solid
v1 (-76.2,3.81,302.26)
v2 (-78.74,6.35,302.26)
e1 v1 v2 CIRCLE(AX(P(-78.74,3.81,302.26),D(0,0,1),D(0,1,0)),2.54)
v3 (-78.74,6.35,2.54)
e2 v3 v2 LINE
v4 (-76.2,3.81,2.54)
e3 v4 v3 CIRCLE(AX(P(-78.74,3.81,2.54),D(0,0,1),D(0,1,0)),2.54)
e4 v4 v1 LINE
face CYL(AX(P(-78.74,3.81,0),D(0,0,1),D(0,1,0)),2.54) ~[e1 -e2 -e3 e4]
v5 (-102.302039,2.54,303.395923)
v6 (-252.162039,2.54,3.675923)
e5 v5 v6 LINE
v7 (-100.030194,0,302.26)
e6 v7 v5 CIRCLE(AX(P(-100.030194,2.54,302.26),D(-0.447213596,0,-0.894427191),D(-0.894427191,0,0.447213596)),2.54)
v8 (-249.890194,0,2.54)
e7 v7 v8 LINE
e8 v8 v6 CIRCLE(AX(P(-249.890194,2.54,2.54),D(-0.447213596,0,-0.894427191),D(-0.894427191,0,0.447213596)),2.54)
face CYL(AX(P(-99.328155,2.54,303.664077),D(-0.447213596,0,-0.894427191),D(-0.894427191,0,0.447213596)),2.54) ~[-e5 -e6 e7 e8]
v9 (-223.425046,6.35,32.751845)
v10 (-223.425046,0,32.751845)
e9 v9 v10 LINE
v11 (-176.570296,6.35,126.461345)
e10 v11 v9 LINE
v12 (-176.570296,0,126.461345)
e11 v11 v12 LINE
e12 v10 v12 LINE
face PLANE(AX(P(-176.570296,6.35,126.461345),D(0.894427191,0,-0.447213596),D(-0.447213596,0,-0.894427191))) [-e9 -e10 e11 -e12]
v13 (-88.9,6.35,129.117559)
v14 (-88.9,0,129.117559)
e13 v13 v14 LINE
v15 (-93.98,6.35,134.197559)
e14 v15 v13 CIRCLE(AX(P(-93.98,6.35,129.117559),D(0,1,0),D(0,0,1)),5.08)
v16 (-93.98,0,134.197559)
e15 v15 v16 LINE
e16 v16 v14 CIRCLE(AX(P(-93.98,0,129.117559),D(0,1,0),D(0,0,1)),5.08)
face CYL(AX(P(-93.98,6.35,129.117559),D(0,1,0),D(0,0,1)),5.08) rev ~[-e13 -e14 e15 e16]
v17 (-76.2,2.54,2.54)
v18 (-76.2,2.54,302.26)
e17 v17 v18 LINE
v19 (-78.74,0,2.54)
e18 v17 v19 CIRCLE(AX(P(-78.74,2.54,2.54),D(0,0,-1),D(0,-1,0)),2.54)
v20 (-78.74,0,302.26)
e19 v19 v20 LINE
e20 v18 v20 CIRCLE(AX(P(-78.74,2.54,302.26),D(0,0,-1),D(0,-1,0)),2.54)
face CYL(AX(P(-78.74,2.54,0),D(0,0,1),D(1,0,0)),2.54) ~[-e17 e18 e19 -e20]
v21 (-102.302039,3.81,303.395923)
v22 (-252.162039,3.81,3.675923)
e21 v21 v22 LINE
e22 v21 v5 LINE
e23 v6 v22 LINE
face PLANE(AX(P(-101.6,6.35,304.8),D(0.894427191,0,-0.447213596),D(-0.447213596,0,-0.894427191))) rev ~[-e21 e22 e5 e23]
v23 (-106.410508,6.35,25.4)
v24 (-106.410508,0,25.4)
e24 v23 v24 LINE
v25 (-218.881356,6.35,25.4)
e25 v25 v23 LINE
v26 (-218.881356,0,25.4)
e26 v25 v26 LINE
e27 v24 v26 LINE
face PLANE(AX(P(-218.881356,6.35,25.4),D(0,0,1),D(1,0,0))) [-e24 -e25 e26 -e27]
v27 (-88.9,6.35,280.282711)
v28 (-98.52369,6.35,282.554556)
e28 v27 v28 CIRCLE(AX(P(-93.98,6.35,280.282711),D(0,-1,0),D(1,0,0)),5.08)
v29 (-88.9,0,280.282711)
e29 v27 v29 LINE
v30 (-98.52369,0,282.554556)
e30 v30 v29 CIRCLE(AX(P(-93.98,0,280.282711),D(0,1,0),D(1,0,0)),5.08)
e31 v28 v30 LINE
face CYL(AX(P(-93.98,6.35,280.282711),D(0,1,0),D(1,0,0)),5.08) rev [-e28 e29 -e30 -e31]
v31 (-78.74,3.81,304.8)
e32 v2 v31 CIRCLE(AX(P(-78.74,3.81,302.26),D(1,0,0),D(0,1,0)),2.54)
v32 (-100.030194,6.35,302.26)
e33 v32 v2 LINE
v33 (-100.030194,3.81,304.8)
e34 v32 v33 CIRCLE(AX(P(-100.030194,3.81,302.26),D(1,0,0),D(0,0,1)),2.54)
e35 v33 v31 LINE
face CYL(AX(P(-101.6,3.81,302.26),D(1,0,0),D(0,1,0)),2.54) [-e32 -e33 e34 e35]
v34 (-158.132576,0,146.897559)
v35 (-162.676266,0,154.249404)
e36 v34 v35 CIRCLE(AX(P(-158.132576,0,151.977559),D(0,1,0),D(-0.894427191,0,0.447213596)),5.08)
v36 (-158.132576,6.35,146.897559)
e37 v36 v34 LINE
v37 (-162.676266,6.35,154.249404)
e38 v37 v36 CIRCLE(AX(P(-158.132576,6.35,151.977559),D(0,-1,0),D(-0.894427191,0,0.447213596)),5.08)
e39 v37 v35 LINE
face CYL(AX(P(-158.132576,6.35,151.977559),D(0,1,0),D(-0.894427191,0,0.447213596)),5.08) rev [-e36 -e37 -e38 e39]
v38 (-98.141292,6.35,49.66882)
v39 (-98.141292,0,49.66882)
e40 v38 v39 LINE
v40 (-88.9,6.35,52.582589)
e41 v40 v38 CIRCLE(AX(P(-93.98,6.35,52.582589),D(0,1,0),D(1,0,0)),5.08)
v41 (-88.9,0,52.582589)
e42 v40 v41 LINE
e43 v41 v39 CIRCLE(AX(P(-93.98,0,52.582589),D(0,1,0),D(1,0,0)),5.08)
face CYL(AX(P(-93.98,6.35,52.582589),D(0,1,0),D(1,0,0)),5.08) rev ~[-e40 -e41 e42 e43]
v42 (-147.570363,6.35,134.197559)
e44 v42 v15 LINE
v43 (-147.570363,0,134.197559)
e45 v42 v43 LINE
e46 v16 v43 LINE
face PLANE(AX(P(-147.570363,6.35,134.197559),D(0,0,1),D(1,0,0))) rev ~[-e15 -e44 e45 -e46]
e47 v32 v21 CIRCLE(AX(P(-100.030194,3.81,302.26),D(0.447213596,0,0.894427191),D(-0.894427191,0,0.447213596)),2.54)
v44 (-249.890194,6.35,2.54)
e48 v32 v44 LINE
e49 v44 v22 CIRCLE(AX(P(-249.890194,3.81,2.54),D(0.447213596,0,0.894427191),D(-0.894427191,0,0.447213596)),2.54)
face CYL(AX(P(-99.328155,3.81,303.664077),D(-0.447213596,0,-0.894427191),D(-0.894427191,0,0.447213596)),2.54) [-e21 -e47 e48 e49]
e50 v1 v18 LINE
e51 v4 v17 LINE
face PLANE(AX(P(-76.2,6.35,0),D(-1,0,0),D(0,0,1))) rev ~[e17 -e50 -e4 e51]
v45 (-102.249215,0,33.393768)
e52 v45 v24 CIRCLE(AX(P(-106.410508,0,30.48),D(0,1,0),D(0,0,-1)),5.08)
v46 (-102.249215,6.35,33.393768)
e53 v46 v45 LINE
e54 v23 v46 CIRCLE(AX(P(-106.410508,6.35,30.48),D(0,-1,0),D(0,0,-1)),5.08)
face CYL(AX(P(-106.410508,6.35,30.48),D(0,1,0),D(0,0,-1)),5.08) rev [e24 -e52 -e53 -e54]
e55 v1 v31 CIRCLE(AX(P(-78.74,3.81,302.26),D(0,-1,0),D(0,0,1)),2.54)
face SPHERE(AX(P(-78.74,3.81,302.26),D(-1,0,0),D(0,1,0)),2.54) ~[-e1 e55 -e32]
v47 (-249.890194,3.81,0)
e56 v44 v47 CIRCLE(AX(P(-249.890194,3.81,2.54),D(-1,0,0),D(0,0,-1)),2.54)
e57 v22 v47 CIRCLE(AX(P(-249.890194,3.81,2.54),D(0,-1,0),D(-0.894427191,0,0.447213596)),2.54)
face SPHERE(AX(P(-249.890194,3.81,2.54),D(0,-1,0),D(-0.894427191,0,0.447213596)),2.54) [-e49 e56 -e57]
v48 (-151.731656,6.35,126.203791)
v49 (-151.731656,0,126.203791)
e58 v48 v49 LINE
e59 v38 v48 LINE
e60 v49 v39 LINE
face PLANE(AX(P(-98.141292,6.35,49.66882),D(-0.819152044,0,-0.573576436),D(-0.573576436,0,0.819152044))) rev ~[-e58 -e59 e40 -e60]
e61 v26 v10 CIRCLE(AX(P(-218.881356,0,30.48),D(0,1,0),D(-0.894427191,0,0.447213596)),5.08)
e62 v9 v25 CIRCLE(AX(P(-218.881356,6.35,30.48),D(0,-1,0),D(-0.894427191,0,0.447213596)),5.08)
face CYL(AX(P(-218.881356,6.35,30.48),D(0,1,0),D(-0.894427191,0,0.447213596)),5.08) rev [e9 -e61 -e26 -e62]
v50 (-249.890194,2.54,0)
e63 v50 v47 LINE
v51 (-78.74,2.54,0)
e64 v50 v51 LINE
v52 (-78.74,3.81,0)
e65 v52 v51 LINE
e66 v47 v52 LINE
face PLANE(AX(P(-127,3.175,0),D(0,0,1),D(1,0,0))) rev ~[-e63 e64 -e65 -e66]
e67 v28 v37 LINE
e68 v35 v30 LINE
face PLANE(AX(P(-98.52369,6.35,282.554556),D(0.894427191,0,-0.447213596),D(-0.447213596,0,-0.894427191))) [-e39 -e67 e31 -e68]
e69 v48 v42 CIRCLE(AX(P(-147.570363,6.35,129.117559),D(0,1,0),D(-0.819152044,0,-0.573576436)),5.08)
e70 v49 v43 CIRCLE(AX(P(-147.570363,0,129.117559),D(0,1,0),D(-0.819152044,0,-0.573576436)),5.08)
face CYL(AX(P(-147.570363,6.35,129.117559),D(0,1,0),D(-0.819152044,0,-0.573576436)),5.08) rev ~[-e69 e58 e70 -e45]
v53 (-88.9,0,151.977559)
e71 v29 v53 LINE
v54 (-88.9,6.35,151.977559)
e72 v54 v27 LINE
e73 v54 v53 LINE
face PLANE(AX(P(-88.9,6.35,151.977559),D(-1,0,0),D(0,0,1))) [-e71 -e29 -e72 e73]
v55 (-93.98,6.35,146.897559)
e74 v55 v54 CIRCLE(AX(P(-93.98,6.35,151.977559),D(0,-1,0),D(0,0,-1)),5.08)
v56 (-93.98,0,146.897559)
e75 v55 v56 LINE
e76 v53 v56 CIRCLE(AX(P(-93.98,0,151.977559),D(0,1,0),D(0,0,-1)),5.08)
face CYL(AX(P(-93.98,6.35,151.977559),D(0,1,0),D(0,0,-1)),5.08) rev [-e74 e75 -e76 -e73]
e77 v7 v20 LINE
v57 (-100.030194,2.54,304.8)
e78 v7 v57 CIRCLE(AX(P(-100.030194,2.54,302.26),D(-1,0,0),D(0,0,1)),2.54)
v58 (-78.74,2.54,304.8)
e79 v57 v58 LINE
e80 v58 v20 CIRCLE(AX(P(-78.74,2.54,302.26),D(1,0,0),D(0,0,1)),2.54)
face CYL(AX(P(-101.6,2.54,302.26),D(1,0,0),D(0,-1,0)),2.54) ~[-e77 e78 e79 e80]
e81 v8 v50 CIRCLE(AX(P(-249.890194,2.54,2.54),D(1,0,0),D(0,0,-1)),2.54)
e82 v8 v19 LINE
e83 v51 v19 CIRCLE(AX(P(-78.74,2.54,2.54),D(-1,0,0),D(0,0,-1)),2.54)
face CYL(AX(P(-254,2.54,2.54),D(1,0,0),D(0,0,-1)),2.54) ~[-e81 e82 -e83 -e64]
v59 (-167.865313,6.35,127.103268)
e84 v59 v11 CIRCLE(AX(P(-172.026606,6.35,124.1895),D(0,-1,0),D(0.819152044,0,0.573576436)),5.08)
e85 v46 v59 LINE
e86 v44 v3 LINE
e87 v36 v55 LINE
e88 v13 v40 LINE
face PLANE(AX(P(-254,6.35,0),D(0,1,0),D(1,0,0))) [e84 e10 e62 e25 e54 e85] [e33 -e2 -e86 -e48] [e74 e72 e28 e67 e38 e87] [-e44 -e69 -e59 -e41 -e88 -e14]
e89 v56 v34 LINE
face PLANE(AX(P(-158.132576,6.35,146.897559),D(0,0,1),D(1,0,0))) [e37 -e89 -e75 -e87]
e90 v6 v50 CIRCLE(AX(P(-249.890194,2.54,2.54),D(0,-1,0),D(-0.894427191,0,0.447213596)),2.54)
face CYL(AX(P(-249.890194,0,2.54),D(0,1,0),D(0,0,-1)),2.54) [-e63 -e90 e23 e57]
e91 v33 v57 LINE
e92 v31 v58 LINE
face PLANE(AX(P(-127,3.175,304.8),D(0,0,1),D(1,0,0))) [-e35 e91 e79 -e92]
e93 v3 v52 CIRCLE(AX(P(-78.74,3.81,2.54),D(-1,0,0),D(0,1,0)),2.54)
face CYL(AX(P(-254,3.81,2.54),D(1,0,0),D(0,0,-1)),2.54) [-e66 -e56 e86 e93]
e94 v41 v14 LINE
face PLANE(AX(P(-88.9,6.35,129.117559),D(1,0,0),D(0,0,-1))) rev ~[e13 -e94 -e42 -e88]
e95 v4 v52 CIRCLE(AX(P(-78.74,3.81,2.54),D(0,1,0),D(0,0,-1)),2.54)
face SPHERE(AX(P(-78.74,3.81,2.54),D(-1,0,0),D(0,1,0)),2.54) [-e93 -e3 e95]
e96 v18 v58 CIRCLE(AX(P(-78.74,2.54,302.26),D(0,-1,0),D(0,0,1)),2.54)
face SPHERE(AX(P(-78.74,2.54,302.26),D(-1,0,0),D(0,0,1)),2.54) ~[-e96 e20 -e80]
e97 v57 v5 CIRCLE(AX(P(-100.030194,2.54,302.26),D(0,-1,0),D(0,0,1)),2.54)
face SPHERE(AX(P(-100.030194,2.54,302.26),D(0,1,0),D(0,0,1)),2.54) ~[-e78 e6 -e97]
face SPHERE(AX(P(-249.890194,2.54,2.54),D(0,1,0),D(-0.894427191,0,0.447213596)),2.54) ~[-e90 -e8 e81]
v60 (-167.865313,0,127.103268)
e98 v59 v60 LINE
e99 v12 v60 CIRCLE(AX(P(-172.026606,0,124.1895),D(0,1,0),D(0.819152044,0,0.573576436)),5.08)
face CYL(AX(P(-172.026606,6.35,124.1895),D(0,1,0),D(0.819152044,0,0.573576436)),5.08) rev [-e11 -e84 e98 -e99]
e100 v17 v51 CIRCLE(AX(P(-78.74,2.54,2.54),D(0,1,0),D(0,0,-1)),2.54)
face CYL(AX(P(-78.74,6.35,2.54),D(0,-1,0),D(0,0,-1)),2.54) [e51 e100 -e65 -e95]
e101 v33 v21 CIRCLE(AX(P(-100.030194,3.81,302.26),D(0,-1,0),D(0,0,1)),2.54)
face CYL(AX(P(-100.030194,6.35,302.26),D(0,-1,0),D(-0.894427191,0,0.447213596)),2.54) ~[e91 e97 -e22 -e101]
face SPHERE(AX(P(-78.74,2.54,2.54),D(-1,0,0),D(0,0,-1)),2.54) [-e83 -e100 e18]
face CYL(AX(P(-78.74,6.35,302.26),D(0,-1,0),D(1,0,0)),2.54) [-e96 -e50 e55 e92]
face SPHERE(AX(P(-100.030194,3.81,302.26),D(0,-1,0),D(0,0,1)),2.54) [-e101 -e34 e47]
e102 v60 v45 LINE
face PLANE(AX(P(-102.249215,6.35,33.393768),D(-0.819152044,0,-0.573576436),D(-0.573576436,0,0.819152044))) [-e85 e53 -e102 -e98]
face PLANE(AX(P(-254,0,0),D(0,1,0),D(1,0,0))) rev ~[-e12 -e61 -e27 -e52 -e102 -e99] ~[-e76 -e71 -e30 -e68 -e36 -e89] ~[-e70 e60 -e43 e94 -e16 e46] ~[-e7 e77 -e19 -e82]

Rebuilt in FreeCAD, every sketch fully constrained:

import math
import FreeCAD as App
import Part
import Sketcher
from FreeCAD import Vector
Q = App.Units.Quantity


def edges_at(feature, points):
    """Names of the edges that pass closest to the given points."""
    edges = feature.Shape.Edges
    near = lambda p: min(range(len(edges)), key=lambda i: edges[i].distToShape(Part.Vertex(*p))[0])
    return sorted({f"Edge{near(p) + 1}" for p in points})


def add_polygon(sketch, points):
    """Adds a closed chain of lines whose ends are joined by coincident constraints."""
    first, n = sketch.GeometryCount, len(points)
    for a, b in zip(points, points[1:] + points[:1]):
        sketch.addGeometry(Part.LineSegment(App.Vector(*a, 0), App.Vector(*b, 0)), False)
    for i in range(n):
        sketch.addConstraint(Sketcher.Constraint("Coincident", first + i, 2, first + (i + 1) % n, 1))

doc = App.newDocument("Part")
body = doc.addObject("PartDesign::Body", "Body")

sketch1 = doc.addObject("Sketcher::SketchObject", "Sketch")
body.addObject(sketch1)
sketch1.AttachmentSupport = (doc.XY_Plane, [""])
sketch1.MapMode = "FlatFace"
add_polygon(sketch1, [(-254, 6), (-254, 0), (0, 0), (0, 6)])
sketch1.addConstraint([
    Sketcher.Constraint("Vertical", 0),
    Sketcher.Constraint("Horizontal", 1),
    Sketcher.Constraint("Vertical", 2),
    Sketcher.Constraint("Horizontal", 3),
    Sketcher.Constraint("Coincident", 1, 2, -1, 1),
    Sketcher.Constraint("DistanceX", 1, 1, 1, 2, Q("10 in")),
    Sketcher.Constraint("DistanceY", 0, 2, 0, 1, Q("0.25 in")),
])
pad1 = doc.addObject("PartDesign::Pad", "Pad")
body.addObject(pad1)
pad1.Profile = sketch1
pad1.Length = Q("12 in")

sketch2 = doc.addObject("Sketcher::SketchObject", "Sketch001")
body.addObject(sketch2)
sketch2.AttachmentSupport = (doc.XZ_Plane, [""])
sketch2.MapMode = "FlatFace"
sketch2.AttachmentOffset = App.Placement(Vector(0, 0, -0.25 * 25.4), App.Rotation())
add_polygon(sketch2, [(-102, 305), (-254, 0), (-254, 305)])
sketch2.addConstraint([
    Sketcher.Constraint("Vertical", 1),
    Sketcher.Constraint("Horizontal", 2),
    Sketcher.Constraint("PointOnObject", 0, 2, -1),
    Sketcher.Constraint("DistanceX", 2, 1, 2, 2, Q("6 in")),
    Sketcher.Constraint("DistanceY", 1, 1, 1, 2, Q("12 in")),
    Sketcher.Constraint("DistanceX", 0, 2, -1, 1, Q("10 in")),
])
pocket1 = doc.addObject("PartDesign::Pocket", "Pocket")
body.addObject(pocket1)
pocket1.Profile = sketch2
pocket1.Length = Q("12 in")
pocket1.Reversed = True

sketch3 = doc.addObject("Sketcher::SketchObject", "Sketch002")
body.addObject(sketch3)
sketch3.AttachmentSupport = (doc.XZ_Plane, [""])
sketch3.MapMode = "FlatFace"
sketch3.AttachmentOffset = App.Placement(Vector(0, 0, -0.25 * 25.4), App.Rotation())
add_polygon(sketch3, [(-76, 0), (-76, 305), (0, 305), (0, 0)])
sketch3.addConstraint([
    Sketcher.Constraint("Vertical", 0),
    Sketcher.Constraint("Horizontal", 1),
    Sketcher.Constraint("Vertical", 2),
    Sketcher.Constraint("Horizontal", 3),
    Sketcher.Constraint("Coincident", 2, 2, -1, 1),
    Sketcher.Constraint("DistanceX", 1, 1, 1, 2, Q("3 in")),
    Sketcher.Constraint("DistanceY", 0, 1, 0, 2, Q("12 in")),
])
pocket2 = doc.addObject("PartDesign::Pocket", "Pocket001")
body.addObject(pocket2)
pocket2.Profile = sketch3
pocket2.Type = "ThroughAll"
pocket2.Reversed = True

sketch4 = doc.addObject("Sketcher::SketchObject", "Sketch003")
body.addObject(sketch4)
sketch4.AttachmentSupport = (doc.XZ_Plane, [""])
sketch4.MapMode = "FlatFace"
sketch4.AttachmentOffset = App.Placement(Vector(0, 0, -0.25 * 25.4), App.Rotation())
sketch4.addGeometry([
    Part.LineSegment(Vector(-168, 127, 0), Vector(-102, 33, 0)),
    Part.ArcOfCircle(Part.Circle(Vector(-106, 30, 0), Vector(0, 0, 1), 5), math.radians(-90), math.radians(35)),
    Part.LineSegment(Vector(-106, 25, 0), Vector(-219, 25, 0)),
    Part.ArcOfCircle(Part.Circle(Vector(-219, 30, 0), Vector(0, 0, 1), 5), math.radians(153), math.radians(270)),
    Part.LineSegment(Vector(-223, 33, 0), Vector(-177, 126, 0)),
    Part.ArcOfCircle(Part.Circle(Vector(-172, 124, 0), Vector(0, 0, 1), 5), math.radians(35), math.radians(153)),
], False)
sketch4.addConstraint([
    Sketcher.Constraint("Tangent", 0, 2, 1, 2),
    Sketcher.Constraint("Tangent", 1, 1, 2, 1),
    Sketcher.Constraint("Tangent", 2, 2, 3, 2),
    Sketcher.Constraint("Tangent", 3, 1, 4, 1),
    Sketcher.Constraint("Tangent", 4, 2, 5, 2),
    Sketcher.Constraint("Tangent", 5, 1, 0, 1),
    Sketcher.Constraint("Horizontal", 2),
    Sketcher.Constraint("Equal", 1, 3),
    Sketcher.Constraint("Equal", 3, 5),
    Sketcher.Constraint("Radius", 1, Q("0.2 in")),
    Sketcher.Constraint("DistanceY", -1, 1, 1, 1, Q("1 in")),
    Sketcher.Constraint("Angle", 0, Q("-55 deg")),
    Sketcher.Constraint("DistanceY", -1, 1, 5, 3, Q("124.1895 mm")),
    Sketcher.Constraint("DistanceX", 2, 2, 2, 1, Q("112.470848 mm")),
    Sketcher.Constraint("DistanceX", 1, 3, -1, 1, Q("106.410508 mm")),
])
pocket3 = doc.addObject("PartDesign::Pocket", "Pocket002")
body.addObject(pocket3)
pocket3.Profile = sketch4
pocket3.Type = "UpToFirst"
pocket3.Reversed = True

sketch5 = doc.addObject("Sketcher::SketchObject", "Sketch004")
body.addObject(sketch5)
sketch5.AttachmentSupport = (doc.XZ_Plane, [""])
sketch5.MapMode = "FlatFace"
sketch5.AttachmentOffset = App.Placement(Vector(0, 0, -0.25 * 25.4), App.Rotation())
sketch5.addGeometry([
    Part.LineSegment(Vector(-94, 147, 0), Vector(-158, 147, 0)),
    Part.ArcOfCircle(Part.Circle(Vector(-158, 152, 0), Vector(0, 0, 1), 5), math.radians(153), math.radians(270)),
    Part.LineSegment(Vector(-163, 154, 0), Vector(-99, 283, 0)),
    Part.ArcOfCircle(Part.Circle(Vector(-94, 280, 0), Vector(0, 0, 1), 5), math.radians(0), math.radians(153)),
    Part.LineSegment(Vector(-89, 280, 0), Vector(-89, 152, 0)),
    Part.ArcOfCircle(Part.Circle(Vector(-94, 152, 0), Vector(0, 0, 1), 5), math.radians(-90), math.radians(0)),
], False)
sketch5.addConstraint([
    Sketcher.Constraint("Tangent", 0, 2, 1, 2),
    Sketcher.Constraint("Tangent", 1, 1, 2, 1),
    Sketcher.Constraint("Tangent", 2, 2, 3, 2),
    Sketcher.Constraint("Tangent", 3, 1, 4, 1),
    Sketcher.Constraint("Tangent", 4, 2, 5, 2),
    Sketcher.Constraint("Tangent", 5, 1, 0, 1),
    Sketcher.Constraint("Horizontal", 0),
    Sketcher.Constraint("Vertical", 4),
    Sketcher.Constraint("Equal", 1, 3),
    Sketcher.Constraint("Equal", 3, 5),
    Sketcher.Constraint("Radius", 1, Q("0.2 in")),
    Sketcher.Constraint("DistanceX", 3, 3, -1, 1, Q("3.7 in")),
    Sketcher.Constraint("Distance", 2, Q("143.449521 mm")),
    Sketcher.Constraint("DistanceX", 0, 2, 0, 1, Q("64.152576 mm")),
    Sketcher.Constraint("DistanceY", -1, 1, 1, 3, Q("151.977559 mm")),
])
pocket4 = doc.addObject("PartDesign::Pocket", "Pocket003")
body.addObject(pocket4)
pocket4.Profile = sketch5
pocket4.Type = "UpToFirst"
pocket4.Reversed = True

sketch6 = doc.addObject("Sketcher::SketchObject", "Sketch005")
body.addObject(sketch6)
sketch6.AttachmentSupport = (doc.XZ_Plane, [""])
sketch6.MapMode = "FlatFace"
sketch6.AttachmentOffset = App.Placement(Vector(0, 0, -0.25 * 25.4), App.Rotation())
sketch6.addGeometry([
    Part.LineSegment(Vector(-98, 50, 0), Vector(-152, 126, 0)),
    Part.ArcOfCircle(Part.Circle(Vector(-148, 129, 0), Vector(0, 0, 1), 5), math.radians(90), math.radians(215)),
    Part.LineSegment(Vector(-148, 134, 0), Vector(-94, 134, 0)),
    Part.ArcOfCircle(Part.Circle(Vector(-94, 129, 0), Vector(0, 0, 1), 5), math.radians(0), math.radians(90)),
    Part.LineSegment(Vector(-89, 129, 0), Vector(-89, 53, 0)),
    Part.ArcOfCircle(Part.Circle(Vector(-94, 53, 0), Vector(0, 0, 1), 5), math.radians(-145), math.radians(0)),
], False)
sketch6.addConstraint([
    Sketcher.Constraint("Tangent", 0, 2, 1, 2),
    Sketcher.Constraint("Tangent", 1, 1, 2, 1),
    Sketcher.Constraint("Tangent", 2, 2, 3, 2),
    Sketcher.Constraint("Tangent", 3, 1, 4, 1),
    Sketcher.Constraint("Tangent", 4, 2, 5, 2),
    Sketcher.Constraint("Tangent", 5, 1, 0, 1),
    Sketcher.Constraint("Horizontal", 2),
    Sketcher.Constraint("Vertical", 4),
    Sketcher.Constraint("Equal", 1, 3),
    Sketcher.Constraint("Equal", 3, 5),
    Sketcher.Constraint("Radius", 1, Q("0.2 in")),
    Sketcher.Constraint("Angle", 0, Q("125 deg")),
    Sketcher.Constraint("DistanceX", 3, 3, -1, 1, Q("3.7 in")),
    Sketcher.Constraint("DistanceY", 4, 2, 4, 1, Q("76.53497 mm")),
    Sketcher.Constraint("DistanceY", -1, 1, 1, 3, Q("129.117559 mm")),
])
pocket5 = doc.addObject("PartDesign::Pocket", "Pocket004")
body.addObject(pocket5)
pocket5.Profile = sketch6
pocket5.Type = "UpToFirst"
pocket5.Reversed = True
doc.recompute()

fillet = doc.addObject("PartDesign::Fillet", "Fillet")
body.addObject(fillet)
fillet.Base = (pocket5, edges_at(pocket5, [
    (-177.8, 0, 152.4),
    (-177.8, 6.35, 152.4),
    (-101.6, 3.175, 304.8),
    (-165.1, 0, 0),
    (-165.1, 6.35, 0),
    (-88.9, 6.35, 304.8),
    (-88.9, 0, 304.8),
    (-76.2, 6.35, 152.4),
    (-76.2, 3.175, 304.8),
    (-76.2, 3.175, 0),
    (-76.2, 0, 152.4),
    (-254, 3.175, 0),
]))
fillet.Radius = Q("0.1 in")

doc.recompute()
